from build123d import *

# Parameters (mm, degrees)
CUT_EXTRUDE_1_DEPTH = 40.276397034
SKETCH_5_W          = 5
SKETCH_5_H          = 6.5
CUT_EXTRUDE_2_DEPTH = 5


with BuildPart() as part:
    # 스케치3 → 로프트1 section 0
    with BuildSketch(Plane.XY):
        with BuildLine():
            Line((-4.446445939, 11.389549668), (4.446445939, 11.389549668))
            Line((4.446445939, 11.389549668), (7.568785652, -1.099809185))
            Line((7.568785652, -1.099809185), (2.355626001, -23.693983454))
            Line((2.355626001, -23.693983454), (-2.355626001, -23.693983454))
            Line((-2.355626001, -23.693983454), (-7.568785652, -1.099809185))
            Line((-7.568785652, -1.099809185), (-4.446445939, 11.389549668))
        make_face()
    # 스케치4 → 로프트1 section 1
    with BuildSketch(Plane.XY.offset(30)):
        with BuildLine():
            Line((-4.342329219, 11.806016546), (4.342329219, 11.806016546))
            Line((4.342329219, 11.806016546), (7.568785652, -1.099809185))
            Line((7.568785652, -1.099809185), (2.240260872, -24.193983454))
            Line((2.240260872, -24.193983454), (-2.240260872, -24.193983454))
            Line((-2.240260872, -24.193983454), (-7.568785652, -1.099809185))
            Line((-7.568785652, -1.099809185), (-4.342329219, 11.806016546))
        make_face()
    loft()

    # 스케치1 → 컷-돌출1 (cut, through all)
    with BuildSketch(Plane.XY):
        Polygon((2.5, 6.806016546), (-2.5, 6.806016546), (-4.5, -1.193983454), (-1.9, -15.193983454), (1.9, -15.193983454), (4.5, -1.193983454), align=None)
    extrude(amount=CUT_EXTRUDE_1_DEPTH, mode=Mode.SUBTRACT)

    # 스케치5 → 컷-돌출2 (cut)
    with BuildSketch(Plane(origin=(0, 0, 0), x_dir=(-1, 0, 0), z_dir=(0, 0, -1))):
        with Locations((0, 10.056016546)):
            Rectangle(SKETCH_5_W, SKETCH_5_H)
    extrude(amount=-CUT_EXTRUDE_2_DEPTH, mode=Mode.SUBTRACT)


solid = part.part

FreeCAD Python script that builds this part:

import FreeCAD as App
import Part
import Sketcher

V = App.Vector


def add_polygon(sketch, points):
    """Adds a closed chain of lines whose ends are joined by coincident constraints."""
    first, n = sketch.GeometryCount, len(points)
    for a, b in zip(points, points[1:] + points[:1]):
        sketch.addGeometry(Part.LineSegment(App.Vector(*a, 0), App.Vector(*b, 0)), False)
    for i in range(n):
        sketch.addConstraint(Sketcher.Constraint("Coincident", first + i, 2, first + (i + 1) % n, 1))

doc = App.newDocument("Part")
params = doc.addObject("Spreadsheet::Sheet", "Params")
for row, (alias, value) in enumerate([
    ("sketch3_width", "5 mm"),
    ("sketch3_width2", "3.8 mm"),
    ("sketch4_width", "5 mm"),
    ("sketch4_height", "6.5 mm"),
    ("pocket2_length", "5 mm"),
], start=1):
    params.set(f"A{row}", alias)
    params.set(f"B{row}", "=" + value)
    params.setAlias(f"B{row}", alias)

body = doc.addObject("PartDesign::Body", "Body")

# Sketch on XY plane
sketch1 = doc.addObject("Sketcher::SketchObject", "Sketch")
body.addObject(sketch1)
sketch1.AttachmentSupport = (doc.XY_Plane, [""])
sketch1.MapMode = "FlatFace"
add_polygon(sketch1, [(4.4, 11.4), (-4.4, 11.4), (-7.6, -1.1), (-2.4, -23.7), (2.4, -23.7), (7.6, -1.1)])  # lines 0-5
sketch1.addConstraint([
    Sketcher.Constraint("Horizontal", 0),
    Sketcher.Constraint("Horizontal", 3),
    Sketcher.Constraint("Symmetric", 1, 2, 4, 2, -2),
    Sketcher.Constraint("Equal", 2, 4),
    Sketcher.Constraint("Equal", 1, 5),
    Sketcher.Constraint("DistanceX", 0, 2, 0, 1, 8.892892),
    Sketcher.Constraint("DistanceX", 3, 1, 3, 2, 4.711252),
    Sketcher.Constraint("DistanceY", -1, 1, 0, 2, 11.38955),
    Sketcher.Constraint("DistanceY", 1, 2, -1, 1, 1.099809),
    Sketcher.Constraint("DistanceX", 1, 2, 0, 2, 3.12234),
    Sketcher.Constraint("Distance", 2, 23.187793),
])

# Sketch on XY plane
sketch2 = doc.addObject("Sketcher::SketchObject", "Sketch001")
body.addObject(sketch2)
sketch2.AttachmentSupport = (doc.XY_Plane, [""])
sketch2.MapMode = "FlatFace"
sketch2.AttachmentOffset = App.Placement(V(0, 0, 30), App.Rotation())
add_polygon(sketch2, [(4.3, 11.8), (-4.3, 11.8), (-7.6, -1.1), (-2.2, -24.2), (2.2, -24.2), (7.6, -1.1)])  # lines 0-5
sketch2.addConstraint([
    Sketcher.Constraint("Horizontal", 0),
    Sketcher.Constraint("Horizontal", 3),
    Sketcher.Constraint("Symmetric", 1, 2, 4, 2, -2),
    Sketcher.Constraint("Equal", 2, 4),
    Sketcher.Constraint("Equal", 1, 5),
    Sketcher.Constraint("DistanceY", 2, 2, 0, 2, 36.0),
    Sketcher.Constraint("DistanceX", 0, 2, 0, 1, 8.684658),
    Sketcher.Constraint("DistanceX", 3, 1, 3, 2, 4.480522),
    Sketcher.Constraint("Distance", 1, 13.303021),
    Sketcher.Constraint("Distance", 2, 23.70093),
    Sketcher.Constraint("DistanceY", 1, 2, -1, 1, 1.099809),
])

additiveloft = doc.addObject("PartDesign::AdditiveLoft", "AdditiveLoft")
body.addObject(additiveloft)
additiveloft.Profile = sketch1
additiveloft.Sections = [sketch2]

# Sketch on XY plane
sketch3 = doc.addObject("Sketcher::SketchObject", "Sketch002")
body.addObject(sketch3)
sketch3.AttachmentSupport = (doc.XY_Plane, [""])
sketch3.MapMode = "FlatFace"
add_polygon(sketch3, [(2.5, 6.8), (-2.5, 6.8), (-4.5, -1.2), (-1.9, -15.2), (1.9, -15.2), (4.5, -1.2)])  # lines 0-5
sketch3.addConstraint([
    Sketcher.Constraint("Horizontal", 0),
    Sketcher.Constraint("Horizontal", 3),
    Sketcher.Constraint("Symmetric", 1, 2, 4, 2, -2),
    Sketcher.Constraint("Equal", 2, 4),
    Sketcher.Constraint("Equal", 1, 5),
    Sketcher.Constraint("DistanceX", 0, 2, 0, 1, 5.0),
    Sketcher.Constraint("DistanceX", 3, 1, 3, 2, 3.8),
    Sketcher.Constraint("DistanceX", 1, 2, 0, 2, 2.0),
    Sketcher.Constraint("DistanceY", 1, 2, 0, 2, 8.0),
    Sketcher.Constraint("DistanceY", 2, 2, 1, 2, 14.0),
    Sketcher.Constraint("DistanceY", -1, 1, 0, 2, 6.806017),
])
sketch3.setExpression("Constraints[11]", "Params.sketch3_width")
sketch3.setExpression("Constraints[12]", "Params.sketch3_width2")
pocket1 = doc.addObject("PartDesign::Pocket", "Pocket")
body.addObject(pocket1)
pocket1.Profile = sketch3
pocket1.Type = "ThroughAll"
pocket1.Reversed = True

# Sketch on XY plane
sketch4 = doc.addObject("Sketcher::SketchObject", "Sketch003")
body.addObject(sketch4)
sketch4.AttachmentSupport = (doc.XY_Plane, [""])
sketch4.MapMode = "FlatFace"
add_polygon(sketch4, [(2, 13), (2, 7), (-2, 7), (-2, 13)])  # lines 0-3
sketch4.addConstraint([
    Sketcher.Constraint("Vertical", 0),
    Sketcher.Constraint("Horizontal", 1),
    Sketcher.Constraint("Vertical", 2),
    Sketcher.Constraint("Horizontal", 3),
    Sketcher.Constraint("DistanceX", 1, 2, 1, 1, 5.0),
    Sketcher.Constraint("DistanceY", 0, 2, 0, 1, 6.5),
    Sketcher.Constraint("DistanceX", -1, 1, 0, 2, 2.5),
    Sketcher.Constraint("DistanceY", -1, 1, 0, 2, 6.806017),
])
sketch4.setExpression("Constraints[8]", "Params.sketch4_width")
sketch4.setExpression("Constraints[9]", "Params.sketch4_height")
pocket2 = doc.addObject("PartDesign::Pocket", "Pocket001")
body.addObject(pocket2)
pocket2.Profile = sketch4
pocket2.setExpression("Length", "Params.pocket2_length")
pocket2.Reversed = True

doc.recompute()
